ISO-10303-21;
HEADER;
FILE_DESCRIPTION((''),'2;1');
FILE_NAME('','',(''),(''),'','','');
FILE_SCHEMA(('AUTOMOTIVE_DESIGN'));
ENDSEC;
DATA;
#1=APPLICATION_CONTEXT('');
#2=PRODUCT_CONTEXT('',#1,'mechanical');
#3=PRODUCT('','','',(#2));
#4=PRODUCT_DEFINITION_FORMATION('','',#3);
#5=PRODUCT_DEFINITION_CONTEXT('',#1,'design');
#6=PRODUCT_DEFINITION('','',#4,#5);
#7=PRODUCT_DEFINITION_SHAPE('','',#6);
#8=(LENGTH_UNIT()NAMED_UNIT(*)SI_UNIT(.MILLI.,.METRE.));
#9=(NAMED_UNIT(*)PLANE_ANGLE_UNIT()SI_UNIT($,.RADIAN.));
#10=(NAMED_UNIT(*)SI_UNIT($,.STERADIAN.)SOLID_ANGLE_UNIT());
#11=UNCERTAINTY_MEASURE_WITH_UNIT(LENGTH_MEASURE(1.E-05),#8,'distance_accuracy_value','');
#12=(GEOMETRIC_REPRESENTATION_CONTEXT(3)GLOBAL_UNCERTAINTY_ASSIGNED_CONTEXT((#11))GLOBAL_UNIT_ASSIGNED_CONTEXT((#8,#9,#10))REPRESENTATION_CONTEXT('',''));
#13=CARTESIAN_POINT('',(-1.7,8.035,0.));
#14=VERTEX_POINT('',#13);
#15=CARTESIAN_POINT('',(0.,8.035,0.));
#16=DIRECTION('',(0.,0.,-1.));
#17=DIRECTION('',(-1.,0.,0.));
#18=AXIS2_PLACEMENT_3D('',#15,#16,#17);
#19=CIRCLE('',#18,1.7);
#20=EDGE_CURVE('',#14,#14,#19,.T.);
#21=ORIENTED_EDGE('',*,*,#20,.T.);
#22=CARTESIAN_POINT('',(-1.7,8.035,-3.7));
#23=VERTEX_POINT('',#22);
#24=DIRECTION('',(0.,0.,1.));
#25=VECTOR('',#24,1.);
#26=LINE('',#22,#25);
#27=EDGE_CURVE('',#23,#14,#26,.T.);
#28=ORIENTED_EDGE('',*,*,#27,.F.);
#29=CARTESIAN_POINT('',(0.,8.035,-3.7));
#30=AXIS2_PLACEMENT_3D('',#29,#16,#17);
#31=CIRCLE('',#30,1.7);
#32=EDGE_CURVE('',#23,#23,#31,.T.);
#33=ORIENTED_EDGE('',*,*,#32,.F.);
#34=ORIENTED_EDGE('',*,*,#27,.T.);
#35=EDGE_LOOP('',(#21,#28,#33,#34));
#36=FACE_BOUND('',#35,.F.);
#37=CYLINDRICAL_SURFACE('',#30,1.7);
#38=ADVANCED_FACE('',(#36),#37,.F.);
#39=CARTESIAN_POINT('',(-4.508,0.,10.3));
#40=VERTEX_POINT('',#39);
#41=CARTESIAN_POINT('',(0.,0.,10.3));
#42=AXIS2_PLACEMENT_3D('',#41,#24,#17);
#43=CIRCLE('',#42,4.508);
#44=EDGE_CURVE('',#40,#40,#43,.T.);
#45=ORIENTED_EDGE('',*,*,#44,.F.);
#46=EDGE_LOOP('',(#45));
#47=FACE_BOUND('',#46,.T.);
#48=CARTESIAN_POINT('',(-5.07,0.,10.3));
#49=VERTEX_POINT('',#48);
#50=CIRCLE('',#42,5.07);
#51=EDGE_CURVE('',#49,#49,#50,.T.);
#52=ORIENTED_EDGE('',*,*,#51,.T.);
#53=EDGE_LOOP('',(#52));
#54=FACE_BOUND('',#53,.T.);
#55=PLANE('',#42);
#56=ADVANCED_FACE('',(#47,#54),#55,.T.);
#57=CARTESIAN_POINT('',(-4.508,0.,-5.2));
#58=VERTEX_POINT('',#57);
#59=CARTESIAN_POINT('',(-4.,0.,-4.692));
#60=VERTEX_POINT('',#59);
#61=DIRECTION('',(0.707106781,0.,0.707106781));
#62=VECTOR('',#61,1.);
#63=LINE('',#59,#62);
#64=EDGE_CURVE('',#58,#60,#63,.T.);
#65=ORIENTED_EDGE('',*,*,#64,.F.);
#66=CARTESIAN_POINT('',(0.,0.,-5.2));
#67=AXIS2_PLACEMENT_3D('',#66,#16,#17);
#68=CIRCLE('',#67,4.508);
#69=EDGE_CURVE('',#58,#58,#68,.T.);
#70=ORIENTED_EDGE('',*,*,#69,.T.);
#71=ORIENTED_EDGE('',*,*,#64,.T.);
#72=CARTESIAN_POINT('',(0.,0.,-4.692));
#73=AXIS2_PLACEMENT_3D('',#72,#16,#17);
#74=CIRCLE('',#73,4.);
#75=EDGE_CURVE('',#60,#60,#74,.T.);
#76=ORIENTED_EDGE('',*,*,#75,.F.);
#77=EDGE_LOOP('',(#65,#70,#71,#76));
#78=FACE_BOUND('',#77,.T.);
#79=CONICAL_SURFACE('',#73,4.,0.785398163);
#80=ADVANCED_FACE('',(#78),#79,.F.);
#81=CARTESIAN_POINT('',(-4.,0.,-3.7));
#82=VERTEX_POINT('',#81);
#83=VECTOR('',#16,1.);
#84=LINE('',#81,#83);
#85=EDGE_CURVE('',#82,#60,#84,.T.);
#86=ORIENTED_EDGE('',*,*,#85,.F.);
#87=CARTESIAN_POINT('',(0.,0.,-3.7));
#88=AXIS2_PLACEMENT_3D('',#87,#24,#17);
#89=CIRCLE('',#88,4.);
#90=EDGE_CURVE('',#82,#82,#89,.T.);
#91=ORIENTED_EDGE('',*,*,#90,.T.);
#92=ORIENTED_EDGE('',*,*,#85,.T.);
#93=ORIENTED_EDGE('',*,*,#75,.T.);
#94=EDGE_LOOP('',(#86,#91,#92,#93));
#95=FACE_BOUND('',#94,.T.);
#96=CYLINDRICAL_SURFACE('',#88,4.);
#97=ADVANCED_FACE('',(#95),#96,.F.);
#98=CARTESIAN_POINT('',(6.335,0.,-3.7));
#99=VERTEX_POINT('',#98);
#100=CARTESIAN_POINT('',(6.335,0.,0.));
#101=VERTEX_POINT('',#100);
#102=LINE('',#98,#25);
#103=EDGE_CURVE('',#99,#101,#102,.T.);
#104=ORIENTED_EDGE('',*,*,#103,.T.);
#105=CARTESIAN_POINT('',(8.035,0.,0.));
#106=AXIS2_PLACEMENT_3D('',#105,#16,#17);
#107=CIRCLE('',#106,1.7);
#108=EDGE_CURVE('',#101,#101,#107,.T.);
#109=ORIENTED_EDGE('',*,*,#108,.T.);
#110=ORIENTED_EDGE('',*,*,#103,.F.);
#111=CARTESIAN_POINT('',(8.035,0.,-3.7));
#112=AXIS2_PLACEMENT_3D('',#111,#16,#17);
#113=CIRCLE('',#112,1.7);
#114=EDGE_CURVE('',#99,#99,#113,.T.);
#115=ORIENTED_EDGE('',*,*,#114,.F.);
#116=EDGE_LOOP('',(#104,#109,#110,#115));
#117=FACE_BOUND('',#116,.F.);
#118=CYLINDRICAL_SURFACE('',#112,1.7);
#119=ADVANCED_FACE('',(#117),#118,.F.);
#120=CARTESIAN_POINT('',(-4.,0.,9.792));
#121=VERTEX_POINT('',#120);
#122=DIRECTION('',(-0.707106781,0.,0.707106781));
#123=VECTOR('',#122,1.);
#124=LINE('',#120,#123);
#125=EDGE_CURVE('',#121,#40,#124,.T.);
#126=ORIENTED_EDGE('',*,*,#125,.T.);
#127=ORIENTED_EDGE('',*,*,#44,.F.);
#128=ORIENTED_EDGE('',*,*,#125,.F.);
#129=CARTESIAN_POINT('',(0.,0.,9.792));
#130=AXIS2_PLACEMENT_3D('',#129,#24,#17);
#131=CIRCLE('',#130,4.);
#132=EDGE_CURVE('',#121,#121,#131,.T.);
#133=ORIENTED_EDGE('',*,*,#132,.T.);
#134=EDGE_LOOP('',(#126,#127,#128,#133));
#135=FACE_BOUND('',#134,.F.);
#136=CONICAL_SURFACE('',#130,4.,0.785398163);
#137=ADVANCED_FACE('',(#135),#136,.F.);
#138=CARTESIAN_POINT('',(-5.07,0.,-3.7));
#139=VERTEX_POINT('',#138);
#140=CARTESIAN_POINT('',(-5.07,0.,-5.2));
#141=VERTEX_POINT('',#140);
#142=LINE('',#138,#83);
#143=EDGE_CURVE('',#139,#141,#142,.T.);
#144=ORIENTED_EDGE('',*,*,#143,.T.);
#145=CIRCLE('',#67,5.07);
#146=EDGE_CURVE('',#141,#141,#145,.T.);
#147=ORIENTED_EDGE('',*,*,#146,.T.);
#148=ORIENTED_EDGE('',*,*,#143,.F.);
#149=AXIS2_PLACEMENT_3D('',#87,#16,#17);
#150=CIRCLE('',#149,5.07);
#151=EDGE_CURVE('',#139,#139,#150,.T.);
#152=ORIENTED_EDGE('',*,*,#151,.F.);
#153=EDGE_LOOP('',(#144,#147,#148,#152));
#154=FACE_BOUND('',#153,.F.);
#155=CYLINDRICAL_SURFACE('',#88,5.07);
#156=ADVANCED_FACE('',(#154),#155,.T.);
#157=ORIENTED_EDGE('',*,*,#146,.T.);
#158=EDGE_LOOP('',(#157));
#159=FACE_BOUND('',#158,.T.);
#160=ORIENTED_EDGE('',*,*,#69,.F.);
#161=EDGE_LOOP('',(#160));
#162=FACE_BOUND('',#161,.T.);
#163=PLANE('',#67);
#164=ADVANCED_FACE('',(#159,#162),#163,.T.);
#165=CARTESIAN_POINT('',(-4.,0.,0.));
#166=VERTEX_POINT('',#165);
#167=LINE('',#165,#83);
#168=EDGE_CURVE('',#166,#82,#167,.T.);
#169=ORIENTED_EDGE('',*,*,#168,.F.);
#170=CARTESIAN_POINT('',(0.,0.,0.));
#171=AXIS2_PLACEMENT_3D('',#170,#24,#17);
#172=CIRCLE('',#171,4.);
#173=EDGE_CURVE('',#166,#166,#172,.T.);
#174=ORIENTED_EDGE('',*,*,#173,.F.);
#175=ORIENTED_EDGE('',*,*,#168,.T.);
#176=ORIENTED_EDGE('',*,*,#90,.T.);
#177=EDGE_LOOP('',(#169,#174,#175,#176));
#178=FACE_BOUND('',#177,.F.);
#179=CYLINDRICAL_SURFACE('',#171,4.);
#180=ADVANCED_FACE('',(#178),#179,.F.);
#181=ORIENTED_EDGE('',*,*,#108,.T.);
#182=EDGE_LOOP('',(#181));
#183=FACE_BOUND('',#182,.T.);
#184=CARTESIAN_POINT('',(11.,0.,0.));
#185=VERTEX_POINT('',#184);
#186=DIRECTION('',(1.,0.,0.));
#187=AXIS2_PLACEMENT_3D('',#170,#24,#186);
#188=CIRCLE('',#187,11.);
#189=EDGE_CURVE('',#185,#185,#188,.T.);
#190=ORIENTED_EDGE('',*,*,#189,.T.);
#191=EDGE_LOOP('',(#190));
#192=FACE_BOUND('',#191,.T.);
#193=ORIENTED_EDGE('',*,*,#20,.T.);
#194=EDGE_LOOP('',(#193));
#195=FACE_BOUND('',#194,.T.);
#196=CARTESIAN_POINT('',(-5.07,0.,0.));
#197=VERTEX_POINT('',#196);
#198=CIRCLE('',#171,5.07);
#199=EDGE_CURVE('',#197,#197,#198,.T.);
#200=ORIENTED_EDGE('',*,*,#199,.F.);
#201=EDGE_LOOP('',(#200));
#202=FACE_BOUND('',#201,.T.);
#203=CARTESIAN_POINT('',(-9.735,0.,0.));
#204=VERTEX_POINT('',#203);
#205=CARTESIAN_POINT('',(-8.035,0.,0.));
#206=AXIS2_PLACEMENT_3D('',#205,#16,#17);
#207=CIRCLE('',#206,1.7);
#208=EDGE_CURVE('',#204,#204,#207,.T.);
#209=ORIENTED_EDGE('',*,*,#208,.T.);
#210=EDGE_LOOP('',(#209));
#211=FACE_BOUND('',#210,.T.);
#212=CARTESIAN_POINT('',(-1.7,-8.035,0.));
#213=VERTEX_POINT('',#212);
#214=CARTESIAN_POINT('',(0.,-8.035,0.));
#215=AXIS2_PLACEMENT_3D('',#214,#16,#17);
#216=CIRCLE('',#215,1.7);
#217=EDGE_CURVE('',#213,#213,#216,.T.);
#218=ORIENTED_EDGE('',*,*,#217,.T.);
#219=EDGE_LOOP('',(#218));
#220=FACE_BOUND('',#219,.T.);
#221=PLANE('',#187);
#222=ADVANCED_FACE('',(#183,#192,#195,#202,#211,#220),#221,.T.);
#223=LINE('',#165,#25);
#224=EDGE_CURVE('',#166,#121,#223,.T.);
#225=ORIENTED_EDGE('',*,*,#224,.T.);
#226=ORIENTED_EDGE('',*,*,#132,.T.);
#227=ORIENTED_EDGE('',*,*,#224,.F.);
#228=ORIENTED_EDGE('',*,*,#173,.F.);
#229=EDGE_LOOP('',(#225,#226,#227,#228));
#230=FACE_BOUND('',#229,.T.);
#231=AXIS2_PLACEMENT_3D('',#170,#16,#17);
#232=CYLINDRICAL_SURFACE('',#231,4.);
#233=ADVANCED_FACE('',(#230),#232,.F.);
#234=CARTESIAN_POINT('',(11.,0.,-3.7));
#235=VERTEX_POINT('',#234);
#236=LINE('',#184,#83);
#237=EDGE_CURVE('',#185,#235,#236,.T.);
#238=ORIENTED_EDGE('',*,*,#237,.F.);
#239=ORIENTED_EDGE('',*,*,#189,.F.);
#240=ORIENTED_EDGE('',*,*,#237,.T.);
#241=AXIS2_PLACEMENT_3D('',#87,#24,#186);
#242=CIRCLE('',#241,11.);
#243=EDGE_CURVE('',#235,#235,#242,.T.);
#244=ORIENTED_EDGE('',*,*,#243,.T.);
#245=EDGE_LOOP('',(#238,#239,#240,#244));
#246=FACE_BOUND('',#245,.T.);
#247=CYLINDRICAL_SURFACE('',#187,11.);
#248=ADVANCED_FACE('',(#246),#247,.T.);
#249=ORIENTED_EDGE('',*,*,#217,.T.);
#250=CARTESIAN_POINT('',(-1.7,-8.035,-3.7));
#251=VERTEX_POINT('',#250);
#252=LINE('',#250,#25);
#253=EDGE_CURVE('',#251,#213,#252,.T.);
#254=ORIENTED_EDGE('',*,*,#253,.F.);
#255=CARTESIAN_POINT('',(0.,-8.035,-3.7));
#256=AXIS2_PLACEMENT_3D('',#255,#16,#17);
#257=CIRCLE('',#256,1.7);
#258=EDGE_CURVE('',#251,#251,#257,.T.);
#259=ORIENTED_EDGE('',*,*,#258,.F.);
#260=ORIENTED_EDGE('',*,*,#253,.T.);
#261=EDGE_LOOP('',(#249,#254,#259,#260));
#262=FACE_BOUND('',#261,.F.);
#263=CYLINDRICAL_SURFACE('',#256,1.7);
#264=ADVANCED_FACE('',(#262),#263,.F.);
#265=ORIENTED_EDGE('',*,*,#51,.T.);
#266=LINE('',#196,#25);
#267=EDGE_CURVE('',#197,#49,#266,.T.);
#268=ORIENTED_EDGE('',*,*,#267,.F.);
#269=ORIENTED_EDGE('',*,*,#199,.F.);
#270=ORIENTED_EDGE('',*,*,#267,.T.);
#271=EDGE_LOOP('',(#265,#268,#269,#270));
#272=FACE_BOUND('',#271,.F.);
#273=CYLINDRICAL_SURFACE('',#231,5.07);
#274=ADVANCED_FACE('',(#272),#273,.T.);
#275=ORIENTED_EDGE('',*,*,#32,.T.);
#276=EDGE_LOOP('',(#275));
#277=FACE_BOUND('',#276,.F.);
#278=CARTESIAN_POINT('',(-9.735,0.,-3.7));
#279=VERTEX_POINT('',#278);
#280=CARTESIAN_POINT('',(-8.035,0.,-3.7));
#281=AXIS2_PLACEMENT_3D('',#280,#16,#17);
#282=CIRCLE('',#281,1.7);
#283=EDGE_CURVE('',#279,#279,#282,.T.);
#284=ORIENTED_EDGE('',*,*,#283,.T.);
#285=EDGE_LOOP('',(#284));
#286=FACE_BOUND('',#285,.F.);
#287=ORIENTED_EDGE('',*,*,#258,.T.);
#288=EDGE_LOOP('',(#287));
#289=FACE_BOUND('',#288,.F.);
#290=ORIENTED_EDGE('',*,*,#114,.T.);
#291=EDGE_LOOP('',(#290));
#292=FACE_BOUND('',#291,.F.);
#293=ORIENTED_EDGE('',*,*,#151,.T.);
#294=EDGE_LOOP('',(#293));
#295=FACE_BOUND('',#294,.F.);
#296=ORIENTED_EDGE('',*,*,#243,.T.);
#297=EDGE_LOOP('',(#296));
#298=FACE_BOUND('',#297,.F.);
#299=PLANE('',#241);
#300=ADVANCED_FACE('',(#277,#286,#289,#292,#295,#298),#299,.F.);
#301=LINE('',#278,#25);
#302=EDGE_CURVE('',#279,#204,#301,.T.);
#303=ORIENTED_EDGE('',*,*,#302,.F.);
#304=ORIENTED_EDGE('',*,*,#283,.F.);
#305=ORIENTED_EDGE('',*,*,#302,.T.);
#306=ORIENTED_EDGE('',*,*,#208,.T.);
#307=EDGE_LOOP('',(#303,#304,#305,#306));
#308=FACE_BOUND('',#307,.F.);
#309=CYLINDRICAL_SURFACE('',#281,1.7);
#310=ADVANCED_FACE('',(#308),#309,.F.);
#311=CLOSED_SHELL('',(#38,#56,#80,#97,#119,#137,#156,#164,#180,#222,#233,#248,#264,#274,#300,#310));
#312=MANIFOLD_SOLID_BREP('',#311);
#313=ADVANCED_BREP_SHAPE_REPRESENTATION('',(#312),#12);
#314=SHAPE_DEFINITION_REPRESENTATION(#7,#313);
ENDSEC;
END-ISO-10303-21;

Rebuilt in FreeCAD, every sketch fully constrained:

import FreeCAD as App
import Part
import Sketcher
from FreeCAD import Vector


def edges_at(feature, points):
    """Names of the edges that pass closest to the given points."""
    edges = feature.Shape.Edges
    near = lambda p: min(range(len(edges)), key=lambda i: edges[i].distToShape(Part.Vertex(*p))[0])
    return sorted({f"Edge{near(p) + 1}" for p in points})

doc = App.newDocument("Part")
body = doc.addObject("PartDesign::Body", "Body")

# Sketch on XY plane
sketch1 = doc.addObject("Sketcher::SketchObject", "Sketch")
body.addObject(sketch1)
sketch1.AttachmentSupport = (doc.XY_Plane, [""])
sketch1.MapMode = "FlatFace"
sketch1.addGeometry([
    Part.Circle(Vector(0, 0, 0), Vector(0, 0, 1), 5.1),
    Part.Circle(Vector(0, 0, 0), Vector(0, 0, 1), 4),
], False)
sketch1.addConstraint([
    Sketcher.Constraint("Coincident", 0, 3, -1, 1),
    Sketcher.Constraint("Coincident", 1, 3, -1, 1),
    Sketcher.Constraint("Diameter", 1, 8.0),
    Sketcher.Constraint("Diameter", 0, 10.14),
])
pad1 = doc.addObject("PartDesign::Pad", "Pad")
body.addObject(pad1)
pad1.Profile = sketch1
pad1.Length = 10.3

# Sketch on XY plane
sketch2 = doc.addObject("Sketcher::SketchObject", "Sketch001")
body.addObject(sketch2)
sketch2.AttachmentSupport = (doc.XY_Plane, [""])
sketch2.MapMode = "FlatFace"
sketch2.addGeometry([
    Part.Circle(Vector(0, 0, 0), Vector(0, 0, 1), 11),
    Part.Circle(Vector(0, 0, 0), Vector(0, 0, 1), 4),
], False)
sketch2.addConstraint([
    Sketcher.Constraint("Coincident", 0, 3, -1, 1),
    Sketcher.Constraint("Coincident", 1, 3, -1, 1),
    Sketcher.Constraint("Diameter", 0, 22.0),
    Sketcher.Constraint("Diameter", 1, 8.0),
])
pad2 = doc.addObject("PartDesign::Pad", "Pad001")
body.addObject(pad2)
pad2.Profile = sketch2
pad2.Length = 3.7
pad2.Reversed = True

# Sketch on XY plane
sketch3 = doc.addObject("Sketcher::SketchObject", "Sketch002")
body.addObject(sketch3)
sketch3.AttachmentSupport = (doc.XY_Plane, [""])
sketch3.MapMode = "FlatFace"
sketch3.AttachmentOffset = App.Placement(Vector(0, 0, -3.7), App.Rotation())
sketch3.addGeometry([
    Part.Circle(Vector(0, 0, 0), Vector(0, 0, 1), 5.1),
    Part.Circle(Vector(0, 0, 0), Vector(0, 0, 1), 4),
], False)
sketch3.addConstraint([
    Sketcher.Constraint("Coincident", 0, 3, -1, 1),
    Sketcher.Constraint("Coincident", 1, 3, -1, 1),
    Sketcher.Constraint("Diameter", 1, 8.0),
    Sketcher.Constraint("Diameter", 0, 10.14),
])
pad3 = doc.addObject("PartDesign::Pad", "Pad002")
body.addObject(pad3)
pad3.Profile = sketch3
pad3.Length = 1.5
pad3.Reversed = True
doc.recompute()

chamfer = doc.addObject("PartDesign::Chamfer", "Chamfer")
body.addObject(chamfer)
chamfer.Base = (pad3, edges_at(pad3, [(4, 0, -5.2), (4, 0, 10.3)]))
chamfer.Size = 0.508

# Sketch on XY plane
sketch4 = doc.addObject("Sketcher::SketchObject", "Sketch003")
body.addObject(sketch4)
sketch4.AttachmentSupport = (doc.XY_Plane, [""])
sketch4.MapMode = "FlatFace"
sketch4.AttachmentOffset = App.Placement(Vector(0, 0, -3.7), App.Rotation())
sketch4.addGeometry([
    Part.Circle(Vector(8, 0, 0), Vector(0, 0, 1), 1.7),
    Part.Circle(Vector(0, 8, 0), Vector(0, 0, 1), 1.7),
    Part.Circle(Vector(-8, 0, 0), Vector(0, 0, 1), 1.7),
    Part.Circle(Vector(0, -8, 0), Vector(0, 0, 1), 1.7),
], False)
sketch4.addConstraint([
    Sketcher.Constraint("Equal", 0, 1),
    Sketcher.Constraint("Equal", 1, 2),
    Sketcher.Constraint("Equal", 2, 3),
    Sketcher.Constraint("Symmetric", 0, 3, 2, 3, -1, 1),
    Sketcher.Constraint("Symmetric", 1, 3, 3, 3, -1, 1),
    Sketcher.Constraint("PointOnObject", 0, 3, -1),
    Sketcher.Constraint("PointOnObject", 1, 3, -2),
    Sketcher.Constraint("Diameter", 0, 3.4),
    Sketcher.Constraint("DistanceX", 2, 3, 0, 3, 16.07),
    Sketcher.Constraint("DistanceY", 3, 3, 1, 3, 16.07),
])
pocket1 = doc.addObject("PartDesign::Pocket", "Pocket")
body.addObject(pocket1)
pocket1.Profile = sketch4
pocket1.Length = 4.294
pocket1.Reversed = True

doc.recompute()
